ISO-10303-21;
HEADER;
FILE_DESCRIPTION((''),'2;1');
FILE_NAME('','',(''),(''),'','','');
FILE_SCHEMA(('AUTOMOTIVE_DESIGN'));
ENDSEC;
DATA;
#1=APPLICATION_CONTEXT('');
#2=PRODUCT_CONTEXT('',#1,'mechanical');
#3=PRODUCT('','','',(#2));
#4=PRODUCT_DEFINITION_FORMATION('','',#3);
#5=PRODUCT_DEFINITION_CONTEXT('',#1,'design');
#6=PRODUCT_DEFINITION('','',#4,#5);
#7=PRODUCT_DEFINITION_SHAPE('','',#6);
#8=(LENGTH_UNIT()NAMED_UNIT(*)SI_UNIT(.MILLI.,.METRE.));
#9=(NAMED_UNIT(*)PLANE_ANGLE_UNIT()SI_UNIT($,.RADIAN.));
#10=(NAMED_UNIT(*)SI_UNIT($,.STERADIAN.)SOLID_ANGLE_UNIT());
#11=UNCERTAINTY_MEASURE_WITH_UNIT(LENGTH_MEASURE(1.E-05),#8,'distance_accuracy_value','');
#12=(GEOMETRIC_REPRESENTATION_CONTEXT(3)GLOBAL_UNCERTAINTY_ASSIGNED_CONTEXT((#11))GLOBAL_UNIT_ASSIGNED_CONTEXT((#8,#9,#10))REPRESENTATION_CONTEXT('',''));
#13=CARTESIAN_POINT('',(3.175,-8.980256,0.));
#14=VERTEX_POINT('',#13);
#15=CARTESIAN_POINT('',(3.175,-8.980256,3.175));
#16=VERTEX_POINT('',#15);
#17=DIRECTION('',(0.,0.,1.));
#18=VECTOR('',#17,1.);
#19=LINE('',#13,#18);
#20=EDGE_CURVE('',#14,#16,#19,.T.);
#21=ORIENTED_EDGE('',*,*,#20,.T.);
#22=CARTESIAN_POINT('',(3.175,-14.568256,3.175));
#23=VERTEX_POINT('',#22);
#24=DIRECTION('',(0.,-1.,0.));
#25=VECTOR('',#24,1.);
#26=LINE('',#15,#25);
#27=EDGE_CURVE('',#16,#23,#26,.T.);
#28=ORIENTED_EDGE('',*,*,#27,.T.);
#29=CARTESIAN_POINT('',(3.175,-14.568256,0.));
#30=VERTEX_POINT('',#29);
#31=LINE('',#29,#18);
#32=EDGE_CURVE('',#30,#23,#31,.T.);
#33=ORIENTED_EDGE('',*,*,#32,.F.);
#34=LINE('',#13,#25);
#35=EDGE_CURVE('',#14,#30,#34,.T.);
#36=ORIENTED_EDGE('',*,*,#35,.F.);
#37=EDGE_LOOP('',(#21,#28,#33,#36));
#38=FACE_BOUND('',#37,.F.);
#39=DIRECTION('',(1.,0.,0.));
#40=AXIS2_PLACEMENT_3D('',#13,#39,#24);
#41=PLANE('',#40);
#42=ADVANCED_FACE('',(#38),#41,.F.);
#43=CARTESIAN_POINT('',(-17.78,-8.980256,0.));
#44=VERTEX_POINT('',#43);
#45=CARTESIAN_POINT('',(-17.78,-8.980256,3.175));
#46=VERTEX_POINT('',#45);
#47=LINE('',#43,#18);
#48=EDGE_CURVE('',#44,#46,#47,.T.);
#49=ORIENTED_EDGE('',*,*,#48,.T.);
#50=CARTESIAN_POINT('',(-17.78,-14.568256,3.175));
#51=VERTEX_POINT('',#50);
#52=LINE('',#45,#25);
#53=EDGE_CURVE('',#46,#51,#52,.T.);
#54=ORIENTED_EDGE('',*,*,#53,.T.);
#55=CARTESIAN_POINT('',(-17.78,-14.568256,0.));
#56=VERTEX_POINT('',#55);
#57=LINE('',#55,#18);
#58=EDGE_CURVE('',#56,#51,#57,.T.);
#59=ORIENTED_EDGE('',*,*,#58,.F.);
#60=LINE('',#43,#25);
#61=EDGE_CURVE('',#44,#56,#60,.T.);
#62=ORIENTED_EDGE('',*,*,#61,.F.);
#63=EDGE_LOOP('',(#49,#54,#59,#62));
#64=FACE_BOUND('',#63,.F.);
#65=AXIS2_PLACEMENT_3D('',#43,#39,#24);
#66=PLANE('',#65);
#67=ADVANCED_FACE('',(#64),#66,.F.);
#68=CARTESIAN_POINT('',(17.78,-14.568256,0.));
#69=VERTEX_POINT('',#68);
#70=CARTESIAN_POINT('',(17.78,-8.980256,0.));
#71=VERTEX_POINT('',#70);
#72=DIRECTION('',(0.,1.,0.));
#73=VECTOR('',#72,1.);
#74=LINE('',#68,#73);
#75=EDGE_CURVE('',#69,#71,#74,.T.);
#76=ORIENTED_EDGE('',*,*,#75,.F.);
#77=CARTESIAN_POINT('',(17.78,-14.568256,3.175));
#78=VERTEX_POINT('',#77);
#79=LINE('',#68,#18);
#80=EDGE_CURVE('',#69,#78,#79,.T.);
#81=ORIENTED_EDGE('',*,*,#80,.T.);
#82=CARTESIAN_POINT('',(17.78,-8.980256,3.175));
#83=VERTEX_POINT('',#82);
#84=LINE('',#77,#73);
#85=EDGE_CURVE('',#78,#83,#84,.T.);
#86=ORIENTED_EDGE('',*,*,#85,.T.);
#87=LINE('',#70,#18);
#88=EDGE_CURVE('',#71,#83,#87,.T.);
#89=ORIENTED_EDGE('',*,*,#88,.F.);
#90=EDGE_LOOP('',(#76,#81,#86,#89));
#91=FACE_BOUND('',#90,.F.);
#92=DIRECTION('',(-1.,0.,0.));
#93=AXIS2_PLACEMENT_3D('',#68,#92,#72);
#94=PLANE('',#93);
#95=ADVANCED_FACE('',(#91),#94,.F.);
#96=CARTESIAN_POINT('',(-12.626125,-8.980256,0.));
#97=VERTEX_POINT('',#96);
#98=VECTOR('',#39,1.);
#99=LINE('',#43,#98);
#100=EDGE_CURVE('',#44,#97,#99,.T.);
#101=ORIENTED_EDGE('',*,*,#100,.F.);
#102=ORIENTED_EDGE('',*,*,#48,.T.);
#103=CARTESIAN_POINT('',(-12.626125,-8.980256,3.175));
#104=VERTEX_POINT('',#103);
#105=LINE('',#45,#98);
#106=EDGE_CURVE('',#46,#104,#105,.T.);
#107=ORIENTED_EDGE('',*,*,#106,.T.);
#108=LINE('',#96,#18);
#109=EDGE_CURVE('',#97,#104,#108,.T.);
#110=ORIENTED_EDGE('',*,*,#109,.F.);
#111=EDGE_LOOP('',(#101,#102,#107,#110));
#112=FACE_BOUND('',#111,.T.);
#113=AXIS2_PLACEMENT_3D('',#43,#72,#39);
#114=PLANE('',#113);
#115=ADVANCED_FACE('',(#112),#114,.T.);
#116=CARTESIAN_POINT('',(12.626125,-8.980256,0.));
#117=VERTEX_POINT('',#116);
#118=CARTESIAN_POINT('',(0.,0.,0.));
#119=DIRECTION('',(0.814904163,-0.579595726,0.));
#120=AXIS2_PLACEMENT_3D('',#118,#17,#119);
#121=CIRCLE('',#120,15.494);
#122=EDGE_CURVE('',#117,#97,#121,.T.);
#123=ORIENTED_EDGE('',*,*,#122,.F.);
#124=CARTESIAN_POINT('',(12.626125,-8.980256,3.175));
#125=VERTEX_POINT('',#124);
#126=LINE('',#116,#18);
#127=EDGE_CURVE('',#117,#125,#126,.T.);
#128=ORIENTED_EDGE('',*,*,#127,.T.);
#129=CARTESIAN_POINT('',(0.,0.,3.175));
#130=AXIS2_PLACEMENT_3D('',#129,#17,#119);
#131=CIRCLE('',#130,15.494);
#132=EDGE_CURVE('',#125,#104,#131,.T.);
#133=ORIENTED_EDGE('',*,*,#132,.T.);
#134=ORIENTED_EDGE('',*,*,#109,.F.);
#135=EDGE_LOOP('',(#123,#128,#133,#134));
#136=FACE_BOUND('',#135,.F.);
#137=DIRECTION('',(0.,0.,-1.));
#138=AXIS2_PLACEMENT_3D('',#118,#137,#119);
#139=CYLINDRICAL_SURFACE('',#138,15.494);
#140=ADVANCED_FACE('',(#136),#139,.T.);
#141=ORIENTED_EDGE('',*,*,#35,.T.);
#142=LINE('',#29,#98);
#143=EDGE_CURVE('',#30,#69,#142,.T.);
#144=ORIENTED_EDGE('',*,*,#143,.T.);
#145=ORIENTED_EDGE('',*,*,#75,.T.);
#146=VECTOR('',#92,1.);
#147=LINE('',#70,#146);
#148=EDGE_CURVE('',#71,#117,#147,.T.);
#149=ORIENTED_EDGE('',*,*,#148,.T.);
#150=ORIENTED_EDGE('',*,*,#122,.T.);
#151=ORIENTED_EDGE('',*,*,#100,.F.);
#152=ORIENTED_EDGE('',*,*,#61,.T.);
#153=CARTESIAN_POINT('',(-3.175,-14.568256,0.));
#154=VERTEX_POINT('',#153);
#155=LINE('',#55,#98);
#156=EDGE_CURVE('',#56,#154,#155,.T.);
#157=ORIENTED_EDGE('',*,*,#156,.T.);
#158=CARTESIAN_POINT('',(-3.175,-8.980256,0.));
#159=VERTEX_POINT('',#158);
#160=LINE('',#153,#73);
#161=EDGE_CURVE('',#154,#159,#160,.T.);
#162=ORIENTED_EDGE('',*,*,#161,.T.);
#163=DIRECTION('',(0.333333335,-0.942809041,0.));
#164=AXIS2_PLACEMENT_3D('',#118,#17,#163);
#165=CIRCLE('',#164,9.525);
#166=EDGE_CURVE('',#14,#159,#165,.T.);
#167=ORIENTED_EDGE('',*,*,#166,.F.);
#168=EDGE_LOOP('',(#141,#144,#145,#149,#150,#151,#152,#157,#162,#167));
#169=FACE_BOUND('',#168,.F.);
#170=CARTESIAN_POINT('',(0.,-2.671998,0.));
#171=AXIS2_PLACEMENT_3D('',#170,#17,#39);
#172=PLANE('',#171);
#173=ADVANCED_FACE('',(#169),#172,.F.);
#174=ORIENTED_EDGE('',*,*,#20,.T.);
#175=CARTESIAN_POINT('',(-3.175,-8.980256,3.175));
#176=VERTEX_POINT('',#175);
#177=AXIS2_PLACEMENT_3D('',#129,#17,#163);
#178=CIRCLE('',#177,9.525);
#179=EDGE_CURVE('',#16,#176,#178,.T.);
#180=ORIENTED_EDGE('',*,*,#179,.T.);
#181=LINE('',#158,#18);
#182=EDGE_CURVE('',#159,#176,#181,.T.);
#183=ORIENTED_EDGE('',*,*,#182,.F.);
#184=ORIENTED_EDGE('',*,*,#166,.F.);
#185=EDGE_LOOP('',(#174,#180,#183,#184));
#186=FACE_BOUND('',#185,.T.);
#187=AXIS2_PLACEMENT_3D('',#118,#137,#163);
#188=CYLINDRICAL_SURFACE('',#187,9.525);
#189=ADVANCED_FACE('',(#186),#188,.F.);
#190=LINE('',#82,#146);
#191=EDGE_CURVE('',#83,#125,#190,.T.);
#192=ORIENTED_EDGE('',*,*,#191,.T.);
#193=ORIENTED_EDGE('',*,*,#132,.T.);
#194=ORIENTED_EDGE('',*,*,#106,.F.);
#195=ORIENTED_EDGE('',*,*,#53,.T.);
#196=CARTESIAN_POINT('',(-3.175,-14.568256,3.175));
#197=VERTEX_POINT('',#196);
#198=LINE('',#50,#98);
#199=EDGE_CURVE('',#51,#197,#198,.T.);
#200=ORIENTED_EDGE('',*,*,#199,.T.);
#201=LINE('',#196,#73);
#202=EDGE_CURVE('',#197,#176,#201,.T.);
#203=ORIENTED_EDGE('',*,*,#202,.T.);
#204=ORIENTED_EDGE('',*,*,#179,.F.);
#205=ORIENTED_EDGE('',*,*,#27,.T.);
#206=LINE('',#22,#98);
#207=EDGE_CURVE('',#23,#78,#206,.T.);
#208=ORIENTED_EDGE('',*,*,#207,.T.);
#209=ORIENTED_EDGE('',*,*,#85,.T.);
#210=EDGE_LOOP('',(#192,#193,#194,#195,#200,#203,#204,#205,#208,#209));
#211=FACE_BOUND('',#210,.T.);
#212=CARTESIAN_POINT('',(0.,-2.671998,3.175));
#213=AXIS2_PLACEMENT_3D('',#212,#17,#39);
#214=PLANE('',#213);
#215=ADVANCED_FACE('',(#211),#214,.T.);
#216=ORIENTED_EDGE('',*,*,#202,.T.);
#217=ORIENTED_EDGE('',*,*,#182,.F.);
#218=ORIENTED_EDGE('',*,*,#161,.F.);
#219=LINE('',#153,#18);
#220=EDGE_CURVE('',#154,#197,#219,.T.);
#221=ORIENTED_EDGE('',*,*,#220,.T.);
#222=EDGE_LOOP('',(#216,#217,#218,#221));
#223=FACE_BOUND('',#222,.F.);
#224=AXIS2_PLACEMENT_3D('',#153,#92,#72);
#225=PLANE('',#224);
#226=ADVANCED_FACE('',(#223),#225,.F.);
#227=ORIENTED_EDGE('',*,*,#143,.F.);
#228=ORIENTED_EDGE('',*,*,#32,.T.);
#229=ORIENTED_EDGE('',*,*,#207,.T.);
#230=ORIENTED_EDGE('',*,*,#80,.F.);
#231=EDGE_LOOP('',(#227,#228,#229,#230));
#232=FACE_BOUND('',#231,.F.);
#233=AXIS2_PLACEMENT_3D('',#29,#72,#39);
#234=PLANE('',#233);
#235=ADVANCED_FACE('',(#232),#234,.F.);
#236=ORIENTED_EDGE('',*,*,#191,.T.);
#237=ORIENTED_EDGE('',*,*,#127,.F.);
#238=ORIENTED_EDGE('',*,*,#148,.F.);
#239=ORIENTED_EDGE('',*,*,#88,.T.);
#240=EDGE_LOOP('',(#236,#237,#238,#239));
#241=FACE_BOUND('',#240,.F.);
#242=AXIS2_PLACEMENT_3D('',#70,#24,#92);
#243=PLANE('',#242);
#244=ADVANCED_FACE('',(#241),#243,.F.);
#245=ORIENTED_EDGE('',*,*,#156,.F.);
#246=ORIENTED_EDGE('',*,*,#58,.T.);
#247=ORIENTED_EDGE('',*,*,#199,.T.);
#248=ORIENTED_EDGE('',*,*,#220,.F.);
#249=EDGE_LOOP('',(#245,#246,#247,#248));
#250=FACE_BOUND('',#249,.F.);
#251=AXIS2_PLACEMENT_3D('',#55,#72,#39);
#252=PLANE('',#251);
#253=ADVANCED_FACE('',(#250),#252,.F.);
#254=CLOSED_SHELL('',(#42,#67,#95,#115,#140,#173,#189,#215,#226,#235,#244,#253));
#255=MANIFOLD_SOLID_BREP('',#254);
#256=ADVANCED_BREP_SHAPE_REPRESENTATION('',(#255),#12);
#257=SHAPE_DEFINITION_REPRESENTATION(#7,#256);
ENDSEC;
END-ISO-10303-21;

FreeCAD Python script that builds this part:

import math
import FreeCAD as App
import Part
import Sketcher
from FreeCAD import Vector
Q = App.Units.Quantity

doc = App.newDocument("Part")
body = doc.addObject("PartDesign::Body", "Body")

# Sketch on XY plane
sketch1 = body.newObject("Sketcher::SketchObject", "Sketch")
sketch1.AttachmentSupport = (doc.getObject("XY_Plane"), [""])
sketch1.MapMode = "FlatFace"
sketch1.addGeometry([
    Part.LineSegment(Vector(-18, -9, 0), Vector(-18, -15, 0)),  # 0
    Part.LineSegment(Vector(-18, -15, 0), Vector(-3, -15, 0)),  # 1
    Part.LineSegment(Vector(-3, -15, 0), Vector(-3, -9, 0)),  # 2
    Part.ArcOfCircle(Part.Circle(Vector(0, 0, 0), Vector(0, 0, 1), 10), math.radians(-71), math.radians(251)),  # 3
    Part.LineSegment(Vector(3, -9, 0), Vector(3, -15, 0)),  # 4
    Part.LineSegment(Vector(3, -15, 0), Vector(18, -15, 0)),  # 5
    Part.LineSegment(Vector(18, -15, 0), Vector(18, -9, 0)),  # 6
    Part.LineSegment(Vector(18, -9, 0), Vector(13, -9, 0)),  # 7
    Part.ArcOfCircle(Part.Circle(Vector(0, 0, 0), Vector(0, 0, 1), 15), math.radians(-35), math.radians(215)),  # 8
    Part.LineSegment(Vector(-13, -9, 0), Vector(-18, -9, 0)),  # 9
], False)
sketch1.addConstraint([
    Sketcher.Constraint("Coincident", 0, 2, 1, 1),
    Sketcher.Constraint("Coincident", 1, 2, 2, 1),
    Sketcher.Constraint("Coincident", 2, 2, 3, 2),
    Sketcher.Constraint("Coincident", 3, 1, 4, 1),
    Sketcher.Constraint("Coincident", 4, 2, 5, 1),
    Sketcher.Constraint("Coincident", 5, 2, 6, 1),
    Sketcher.Constraint("Coincident", 6, 2, 7, 1),
    Sketcher.Constraint("Coincident", 7, 2, 8, 1),
    Sketcher.Constraint("Coincident", 8, 2, 9, 1),
    Sketcher.Constraint("Coincident", 9, 2, 0, 1),
    Sketcher.Constraint("Vertical", 0),
    Sketcher.Constraint("Horizontal", 1),
    Sketcher.Constraint("Vertical", 2),
    Sketcher.Constraint("Vertical", 4),
    Sketcher.Constraint("Horizontal", 5),
    Sketcher.Constraint("Vertical", 6),
    Sketcher.Constraint("Horizontal", 7),
    Sketcher.Constraint("Horizontal", 9),
    Sketcher.Constraint("Coincident", 3, 3, -1, 1),
    Sketcher.Constraint("Coincident", 8, 3, -1, 1),
    Sketcher.Constraint("Symmetric", 1, 2, 4, 2, -2),
    Sketcher.Constraint("Symmetric", 6, 2, 9, 2, -2),
    Sketcher.Constraint("Horizontal", 3, 1, 6, 2),
    Sketcher.Constraint("Radius", 8, Q("0.61 in")),
    Sketcher.Constraint("Radius", 3, Q("0.375 in")),
    Sketcher.Constraint("DistanceY", 0, 2, 0, 1, Q("0.22 in")),
    Sketcher.Constraint("DistanceX", 0, 2, -1, 1, Q("0.7 in")),
    Sketcher.Constraint("DistanceX", 1, 1, 1, 2, Q("0.575 in")),
])
pad1 = body.newObject("PartDesign::Pad", "Pad")
pad1.Profile = sketch1
pad1.Length = Q("0.125 in")

doc.recompute()
